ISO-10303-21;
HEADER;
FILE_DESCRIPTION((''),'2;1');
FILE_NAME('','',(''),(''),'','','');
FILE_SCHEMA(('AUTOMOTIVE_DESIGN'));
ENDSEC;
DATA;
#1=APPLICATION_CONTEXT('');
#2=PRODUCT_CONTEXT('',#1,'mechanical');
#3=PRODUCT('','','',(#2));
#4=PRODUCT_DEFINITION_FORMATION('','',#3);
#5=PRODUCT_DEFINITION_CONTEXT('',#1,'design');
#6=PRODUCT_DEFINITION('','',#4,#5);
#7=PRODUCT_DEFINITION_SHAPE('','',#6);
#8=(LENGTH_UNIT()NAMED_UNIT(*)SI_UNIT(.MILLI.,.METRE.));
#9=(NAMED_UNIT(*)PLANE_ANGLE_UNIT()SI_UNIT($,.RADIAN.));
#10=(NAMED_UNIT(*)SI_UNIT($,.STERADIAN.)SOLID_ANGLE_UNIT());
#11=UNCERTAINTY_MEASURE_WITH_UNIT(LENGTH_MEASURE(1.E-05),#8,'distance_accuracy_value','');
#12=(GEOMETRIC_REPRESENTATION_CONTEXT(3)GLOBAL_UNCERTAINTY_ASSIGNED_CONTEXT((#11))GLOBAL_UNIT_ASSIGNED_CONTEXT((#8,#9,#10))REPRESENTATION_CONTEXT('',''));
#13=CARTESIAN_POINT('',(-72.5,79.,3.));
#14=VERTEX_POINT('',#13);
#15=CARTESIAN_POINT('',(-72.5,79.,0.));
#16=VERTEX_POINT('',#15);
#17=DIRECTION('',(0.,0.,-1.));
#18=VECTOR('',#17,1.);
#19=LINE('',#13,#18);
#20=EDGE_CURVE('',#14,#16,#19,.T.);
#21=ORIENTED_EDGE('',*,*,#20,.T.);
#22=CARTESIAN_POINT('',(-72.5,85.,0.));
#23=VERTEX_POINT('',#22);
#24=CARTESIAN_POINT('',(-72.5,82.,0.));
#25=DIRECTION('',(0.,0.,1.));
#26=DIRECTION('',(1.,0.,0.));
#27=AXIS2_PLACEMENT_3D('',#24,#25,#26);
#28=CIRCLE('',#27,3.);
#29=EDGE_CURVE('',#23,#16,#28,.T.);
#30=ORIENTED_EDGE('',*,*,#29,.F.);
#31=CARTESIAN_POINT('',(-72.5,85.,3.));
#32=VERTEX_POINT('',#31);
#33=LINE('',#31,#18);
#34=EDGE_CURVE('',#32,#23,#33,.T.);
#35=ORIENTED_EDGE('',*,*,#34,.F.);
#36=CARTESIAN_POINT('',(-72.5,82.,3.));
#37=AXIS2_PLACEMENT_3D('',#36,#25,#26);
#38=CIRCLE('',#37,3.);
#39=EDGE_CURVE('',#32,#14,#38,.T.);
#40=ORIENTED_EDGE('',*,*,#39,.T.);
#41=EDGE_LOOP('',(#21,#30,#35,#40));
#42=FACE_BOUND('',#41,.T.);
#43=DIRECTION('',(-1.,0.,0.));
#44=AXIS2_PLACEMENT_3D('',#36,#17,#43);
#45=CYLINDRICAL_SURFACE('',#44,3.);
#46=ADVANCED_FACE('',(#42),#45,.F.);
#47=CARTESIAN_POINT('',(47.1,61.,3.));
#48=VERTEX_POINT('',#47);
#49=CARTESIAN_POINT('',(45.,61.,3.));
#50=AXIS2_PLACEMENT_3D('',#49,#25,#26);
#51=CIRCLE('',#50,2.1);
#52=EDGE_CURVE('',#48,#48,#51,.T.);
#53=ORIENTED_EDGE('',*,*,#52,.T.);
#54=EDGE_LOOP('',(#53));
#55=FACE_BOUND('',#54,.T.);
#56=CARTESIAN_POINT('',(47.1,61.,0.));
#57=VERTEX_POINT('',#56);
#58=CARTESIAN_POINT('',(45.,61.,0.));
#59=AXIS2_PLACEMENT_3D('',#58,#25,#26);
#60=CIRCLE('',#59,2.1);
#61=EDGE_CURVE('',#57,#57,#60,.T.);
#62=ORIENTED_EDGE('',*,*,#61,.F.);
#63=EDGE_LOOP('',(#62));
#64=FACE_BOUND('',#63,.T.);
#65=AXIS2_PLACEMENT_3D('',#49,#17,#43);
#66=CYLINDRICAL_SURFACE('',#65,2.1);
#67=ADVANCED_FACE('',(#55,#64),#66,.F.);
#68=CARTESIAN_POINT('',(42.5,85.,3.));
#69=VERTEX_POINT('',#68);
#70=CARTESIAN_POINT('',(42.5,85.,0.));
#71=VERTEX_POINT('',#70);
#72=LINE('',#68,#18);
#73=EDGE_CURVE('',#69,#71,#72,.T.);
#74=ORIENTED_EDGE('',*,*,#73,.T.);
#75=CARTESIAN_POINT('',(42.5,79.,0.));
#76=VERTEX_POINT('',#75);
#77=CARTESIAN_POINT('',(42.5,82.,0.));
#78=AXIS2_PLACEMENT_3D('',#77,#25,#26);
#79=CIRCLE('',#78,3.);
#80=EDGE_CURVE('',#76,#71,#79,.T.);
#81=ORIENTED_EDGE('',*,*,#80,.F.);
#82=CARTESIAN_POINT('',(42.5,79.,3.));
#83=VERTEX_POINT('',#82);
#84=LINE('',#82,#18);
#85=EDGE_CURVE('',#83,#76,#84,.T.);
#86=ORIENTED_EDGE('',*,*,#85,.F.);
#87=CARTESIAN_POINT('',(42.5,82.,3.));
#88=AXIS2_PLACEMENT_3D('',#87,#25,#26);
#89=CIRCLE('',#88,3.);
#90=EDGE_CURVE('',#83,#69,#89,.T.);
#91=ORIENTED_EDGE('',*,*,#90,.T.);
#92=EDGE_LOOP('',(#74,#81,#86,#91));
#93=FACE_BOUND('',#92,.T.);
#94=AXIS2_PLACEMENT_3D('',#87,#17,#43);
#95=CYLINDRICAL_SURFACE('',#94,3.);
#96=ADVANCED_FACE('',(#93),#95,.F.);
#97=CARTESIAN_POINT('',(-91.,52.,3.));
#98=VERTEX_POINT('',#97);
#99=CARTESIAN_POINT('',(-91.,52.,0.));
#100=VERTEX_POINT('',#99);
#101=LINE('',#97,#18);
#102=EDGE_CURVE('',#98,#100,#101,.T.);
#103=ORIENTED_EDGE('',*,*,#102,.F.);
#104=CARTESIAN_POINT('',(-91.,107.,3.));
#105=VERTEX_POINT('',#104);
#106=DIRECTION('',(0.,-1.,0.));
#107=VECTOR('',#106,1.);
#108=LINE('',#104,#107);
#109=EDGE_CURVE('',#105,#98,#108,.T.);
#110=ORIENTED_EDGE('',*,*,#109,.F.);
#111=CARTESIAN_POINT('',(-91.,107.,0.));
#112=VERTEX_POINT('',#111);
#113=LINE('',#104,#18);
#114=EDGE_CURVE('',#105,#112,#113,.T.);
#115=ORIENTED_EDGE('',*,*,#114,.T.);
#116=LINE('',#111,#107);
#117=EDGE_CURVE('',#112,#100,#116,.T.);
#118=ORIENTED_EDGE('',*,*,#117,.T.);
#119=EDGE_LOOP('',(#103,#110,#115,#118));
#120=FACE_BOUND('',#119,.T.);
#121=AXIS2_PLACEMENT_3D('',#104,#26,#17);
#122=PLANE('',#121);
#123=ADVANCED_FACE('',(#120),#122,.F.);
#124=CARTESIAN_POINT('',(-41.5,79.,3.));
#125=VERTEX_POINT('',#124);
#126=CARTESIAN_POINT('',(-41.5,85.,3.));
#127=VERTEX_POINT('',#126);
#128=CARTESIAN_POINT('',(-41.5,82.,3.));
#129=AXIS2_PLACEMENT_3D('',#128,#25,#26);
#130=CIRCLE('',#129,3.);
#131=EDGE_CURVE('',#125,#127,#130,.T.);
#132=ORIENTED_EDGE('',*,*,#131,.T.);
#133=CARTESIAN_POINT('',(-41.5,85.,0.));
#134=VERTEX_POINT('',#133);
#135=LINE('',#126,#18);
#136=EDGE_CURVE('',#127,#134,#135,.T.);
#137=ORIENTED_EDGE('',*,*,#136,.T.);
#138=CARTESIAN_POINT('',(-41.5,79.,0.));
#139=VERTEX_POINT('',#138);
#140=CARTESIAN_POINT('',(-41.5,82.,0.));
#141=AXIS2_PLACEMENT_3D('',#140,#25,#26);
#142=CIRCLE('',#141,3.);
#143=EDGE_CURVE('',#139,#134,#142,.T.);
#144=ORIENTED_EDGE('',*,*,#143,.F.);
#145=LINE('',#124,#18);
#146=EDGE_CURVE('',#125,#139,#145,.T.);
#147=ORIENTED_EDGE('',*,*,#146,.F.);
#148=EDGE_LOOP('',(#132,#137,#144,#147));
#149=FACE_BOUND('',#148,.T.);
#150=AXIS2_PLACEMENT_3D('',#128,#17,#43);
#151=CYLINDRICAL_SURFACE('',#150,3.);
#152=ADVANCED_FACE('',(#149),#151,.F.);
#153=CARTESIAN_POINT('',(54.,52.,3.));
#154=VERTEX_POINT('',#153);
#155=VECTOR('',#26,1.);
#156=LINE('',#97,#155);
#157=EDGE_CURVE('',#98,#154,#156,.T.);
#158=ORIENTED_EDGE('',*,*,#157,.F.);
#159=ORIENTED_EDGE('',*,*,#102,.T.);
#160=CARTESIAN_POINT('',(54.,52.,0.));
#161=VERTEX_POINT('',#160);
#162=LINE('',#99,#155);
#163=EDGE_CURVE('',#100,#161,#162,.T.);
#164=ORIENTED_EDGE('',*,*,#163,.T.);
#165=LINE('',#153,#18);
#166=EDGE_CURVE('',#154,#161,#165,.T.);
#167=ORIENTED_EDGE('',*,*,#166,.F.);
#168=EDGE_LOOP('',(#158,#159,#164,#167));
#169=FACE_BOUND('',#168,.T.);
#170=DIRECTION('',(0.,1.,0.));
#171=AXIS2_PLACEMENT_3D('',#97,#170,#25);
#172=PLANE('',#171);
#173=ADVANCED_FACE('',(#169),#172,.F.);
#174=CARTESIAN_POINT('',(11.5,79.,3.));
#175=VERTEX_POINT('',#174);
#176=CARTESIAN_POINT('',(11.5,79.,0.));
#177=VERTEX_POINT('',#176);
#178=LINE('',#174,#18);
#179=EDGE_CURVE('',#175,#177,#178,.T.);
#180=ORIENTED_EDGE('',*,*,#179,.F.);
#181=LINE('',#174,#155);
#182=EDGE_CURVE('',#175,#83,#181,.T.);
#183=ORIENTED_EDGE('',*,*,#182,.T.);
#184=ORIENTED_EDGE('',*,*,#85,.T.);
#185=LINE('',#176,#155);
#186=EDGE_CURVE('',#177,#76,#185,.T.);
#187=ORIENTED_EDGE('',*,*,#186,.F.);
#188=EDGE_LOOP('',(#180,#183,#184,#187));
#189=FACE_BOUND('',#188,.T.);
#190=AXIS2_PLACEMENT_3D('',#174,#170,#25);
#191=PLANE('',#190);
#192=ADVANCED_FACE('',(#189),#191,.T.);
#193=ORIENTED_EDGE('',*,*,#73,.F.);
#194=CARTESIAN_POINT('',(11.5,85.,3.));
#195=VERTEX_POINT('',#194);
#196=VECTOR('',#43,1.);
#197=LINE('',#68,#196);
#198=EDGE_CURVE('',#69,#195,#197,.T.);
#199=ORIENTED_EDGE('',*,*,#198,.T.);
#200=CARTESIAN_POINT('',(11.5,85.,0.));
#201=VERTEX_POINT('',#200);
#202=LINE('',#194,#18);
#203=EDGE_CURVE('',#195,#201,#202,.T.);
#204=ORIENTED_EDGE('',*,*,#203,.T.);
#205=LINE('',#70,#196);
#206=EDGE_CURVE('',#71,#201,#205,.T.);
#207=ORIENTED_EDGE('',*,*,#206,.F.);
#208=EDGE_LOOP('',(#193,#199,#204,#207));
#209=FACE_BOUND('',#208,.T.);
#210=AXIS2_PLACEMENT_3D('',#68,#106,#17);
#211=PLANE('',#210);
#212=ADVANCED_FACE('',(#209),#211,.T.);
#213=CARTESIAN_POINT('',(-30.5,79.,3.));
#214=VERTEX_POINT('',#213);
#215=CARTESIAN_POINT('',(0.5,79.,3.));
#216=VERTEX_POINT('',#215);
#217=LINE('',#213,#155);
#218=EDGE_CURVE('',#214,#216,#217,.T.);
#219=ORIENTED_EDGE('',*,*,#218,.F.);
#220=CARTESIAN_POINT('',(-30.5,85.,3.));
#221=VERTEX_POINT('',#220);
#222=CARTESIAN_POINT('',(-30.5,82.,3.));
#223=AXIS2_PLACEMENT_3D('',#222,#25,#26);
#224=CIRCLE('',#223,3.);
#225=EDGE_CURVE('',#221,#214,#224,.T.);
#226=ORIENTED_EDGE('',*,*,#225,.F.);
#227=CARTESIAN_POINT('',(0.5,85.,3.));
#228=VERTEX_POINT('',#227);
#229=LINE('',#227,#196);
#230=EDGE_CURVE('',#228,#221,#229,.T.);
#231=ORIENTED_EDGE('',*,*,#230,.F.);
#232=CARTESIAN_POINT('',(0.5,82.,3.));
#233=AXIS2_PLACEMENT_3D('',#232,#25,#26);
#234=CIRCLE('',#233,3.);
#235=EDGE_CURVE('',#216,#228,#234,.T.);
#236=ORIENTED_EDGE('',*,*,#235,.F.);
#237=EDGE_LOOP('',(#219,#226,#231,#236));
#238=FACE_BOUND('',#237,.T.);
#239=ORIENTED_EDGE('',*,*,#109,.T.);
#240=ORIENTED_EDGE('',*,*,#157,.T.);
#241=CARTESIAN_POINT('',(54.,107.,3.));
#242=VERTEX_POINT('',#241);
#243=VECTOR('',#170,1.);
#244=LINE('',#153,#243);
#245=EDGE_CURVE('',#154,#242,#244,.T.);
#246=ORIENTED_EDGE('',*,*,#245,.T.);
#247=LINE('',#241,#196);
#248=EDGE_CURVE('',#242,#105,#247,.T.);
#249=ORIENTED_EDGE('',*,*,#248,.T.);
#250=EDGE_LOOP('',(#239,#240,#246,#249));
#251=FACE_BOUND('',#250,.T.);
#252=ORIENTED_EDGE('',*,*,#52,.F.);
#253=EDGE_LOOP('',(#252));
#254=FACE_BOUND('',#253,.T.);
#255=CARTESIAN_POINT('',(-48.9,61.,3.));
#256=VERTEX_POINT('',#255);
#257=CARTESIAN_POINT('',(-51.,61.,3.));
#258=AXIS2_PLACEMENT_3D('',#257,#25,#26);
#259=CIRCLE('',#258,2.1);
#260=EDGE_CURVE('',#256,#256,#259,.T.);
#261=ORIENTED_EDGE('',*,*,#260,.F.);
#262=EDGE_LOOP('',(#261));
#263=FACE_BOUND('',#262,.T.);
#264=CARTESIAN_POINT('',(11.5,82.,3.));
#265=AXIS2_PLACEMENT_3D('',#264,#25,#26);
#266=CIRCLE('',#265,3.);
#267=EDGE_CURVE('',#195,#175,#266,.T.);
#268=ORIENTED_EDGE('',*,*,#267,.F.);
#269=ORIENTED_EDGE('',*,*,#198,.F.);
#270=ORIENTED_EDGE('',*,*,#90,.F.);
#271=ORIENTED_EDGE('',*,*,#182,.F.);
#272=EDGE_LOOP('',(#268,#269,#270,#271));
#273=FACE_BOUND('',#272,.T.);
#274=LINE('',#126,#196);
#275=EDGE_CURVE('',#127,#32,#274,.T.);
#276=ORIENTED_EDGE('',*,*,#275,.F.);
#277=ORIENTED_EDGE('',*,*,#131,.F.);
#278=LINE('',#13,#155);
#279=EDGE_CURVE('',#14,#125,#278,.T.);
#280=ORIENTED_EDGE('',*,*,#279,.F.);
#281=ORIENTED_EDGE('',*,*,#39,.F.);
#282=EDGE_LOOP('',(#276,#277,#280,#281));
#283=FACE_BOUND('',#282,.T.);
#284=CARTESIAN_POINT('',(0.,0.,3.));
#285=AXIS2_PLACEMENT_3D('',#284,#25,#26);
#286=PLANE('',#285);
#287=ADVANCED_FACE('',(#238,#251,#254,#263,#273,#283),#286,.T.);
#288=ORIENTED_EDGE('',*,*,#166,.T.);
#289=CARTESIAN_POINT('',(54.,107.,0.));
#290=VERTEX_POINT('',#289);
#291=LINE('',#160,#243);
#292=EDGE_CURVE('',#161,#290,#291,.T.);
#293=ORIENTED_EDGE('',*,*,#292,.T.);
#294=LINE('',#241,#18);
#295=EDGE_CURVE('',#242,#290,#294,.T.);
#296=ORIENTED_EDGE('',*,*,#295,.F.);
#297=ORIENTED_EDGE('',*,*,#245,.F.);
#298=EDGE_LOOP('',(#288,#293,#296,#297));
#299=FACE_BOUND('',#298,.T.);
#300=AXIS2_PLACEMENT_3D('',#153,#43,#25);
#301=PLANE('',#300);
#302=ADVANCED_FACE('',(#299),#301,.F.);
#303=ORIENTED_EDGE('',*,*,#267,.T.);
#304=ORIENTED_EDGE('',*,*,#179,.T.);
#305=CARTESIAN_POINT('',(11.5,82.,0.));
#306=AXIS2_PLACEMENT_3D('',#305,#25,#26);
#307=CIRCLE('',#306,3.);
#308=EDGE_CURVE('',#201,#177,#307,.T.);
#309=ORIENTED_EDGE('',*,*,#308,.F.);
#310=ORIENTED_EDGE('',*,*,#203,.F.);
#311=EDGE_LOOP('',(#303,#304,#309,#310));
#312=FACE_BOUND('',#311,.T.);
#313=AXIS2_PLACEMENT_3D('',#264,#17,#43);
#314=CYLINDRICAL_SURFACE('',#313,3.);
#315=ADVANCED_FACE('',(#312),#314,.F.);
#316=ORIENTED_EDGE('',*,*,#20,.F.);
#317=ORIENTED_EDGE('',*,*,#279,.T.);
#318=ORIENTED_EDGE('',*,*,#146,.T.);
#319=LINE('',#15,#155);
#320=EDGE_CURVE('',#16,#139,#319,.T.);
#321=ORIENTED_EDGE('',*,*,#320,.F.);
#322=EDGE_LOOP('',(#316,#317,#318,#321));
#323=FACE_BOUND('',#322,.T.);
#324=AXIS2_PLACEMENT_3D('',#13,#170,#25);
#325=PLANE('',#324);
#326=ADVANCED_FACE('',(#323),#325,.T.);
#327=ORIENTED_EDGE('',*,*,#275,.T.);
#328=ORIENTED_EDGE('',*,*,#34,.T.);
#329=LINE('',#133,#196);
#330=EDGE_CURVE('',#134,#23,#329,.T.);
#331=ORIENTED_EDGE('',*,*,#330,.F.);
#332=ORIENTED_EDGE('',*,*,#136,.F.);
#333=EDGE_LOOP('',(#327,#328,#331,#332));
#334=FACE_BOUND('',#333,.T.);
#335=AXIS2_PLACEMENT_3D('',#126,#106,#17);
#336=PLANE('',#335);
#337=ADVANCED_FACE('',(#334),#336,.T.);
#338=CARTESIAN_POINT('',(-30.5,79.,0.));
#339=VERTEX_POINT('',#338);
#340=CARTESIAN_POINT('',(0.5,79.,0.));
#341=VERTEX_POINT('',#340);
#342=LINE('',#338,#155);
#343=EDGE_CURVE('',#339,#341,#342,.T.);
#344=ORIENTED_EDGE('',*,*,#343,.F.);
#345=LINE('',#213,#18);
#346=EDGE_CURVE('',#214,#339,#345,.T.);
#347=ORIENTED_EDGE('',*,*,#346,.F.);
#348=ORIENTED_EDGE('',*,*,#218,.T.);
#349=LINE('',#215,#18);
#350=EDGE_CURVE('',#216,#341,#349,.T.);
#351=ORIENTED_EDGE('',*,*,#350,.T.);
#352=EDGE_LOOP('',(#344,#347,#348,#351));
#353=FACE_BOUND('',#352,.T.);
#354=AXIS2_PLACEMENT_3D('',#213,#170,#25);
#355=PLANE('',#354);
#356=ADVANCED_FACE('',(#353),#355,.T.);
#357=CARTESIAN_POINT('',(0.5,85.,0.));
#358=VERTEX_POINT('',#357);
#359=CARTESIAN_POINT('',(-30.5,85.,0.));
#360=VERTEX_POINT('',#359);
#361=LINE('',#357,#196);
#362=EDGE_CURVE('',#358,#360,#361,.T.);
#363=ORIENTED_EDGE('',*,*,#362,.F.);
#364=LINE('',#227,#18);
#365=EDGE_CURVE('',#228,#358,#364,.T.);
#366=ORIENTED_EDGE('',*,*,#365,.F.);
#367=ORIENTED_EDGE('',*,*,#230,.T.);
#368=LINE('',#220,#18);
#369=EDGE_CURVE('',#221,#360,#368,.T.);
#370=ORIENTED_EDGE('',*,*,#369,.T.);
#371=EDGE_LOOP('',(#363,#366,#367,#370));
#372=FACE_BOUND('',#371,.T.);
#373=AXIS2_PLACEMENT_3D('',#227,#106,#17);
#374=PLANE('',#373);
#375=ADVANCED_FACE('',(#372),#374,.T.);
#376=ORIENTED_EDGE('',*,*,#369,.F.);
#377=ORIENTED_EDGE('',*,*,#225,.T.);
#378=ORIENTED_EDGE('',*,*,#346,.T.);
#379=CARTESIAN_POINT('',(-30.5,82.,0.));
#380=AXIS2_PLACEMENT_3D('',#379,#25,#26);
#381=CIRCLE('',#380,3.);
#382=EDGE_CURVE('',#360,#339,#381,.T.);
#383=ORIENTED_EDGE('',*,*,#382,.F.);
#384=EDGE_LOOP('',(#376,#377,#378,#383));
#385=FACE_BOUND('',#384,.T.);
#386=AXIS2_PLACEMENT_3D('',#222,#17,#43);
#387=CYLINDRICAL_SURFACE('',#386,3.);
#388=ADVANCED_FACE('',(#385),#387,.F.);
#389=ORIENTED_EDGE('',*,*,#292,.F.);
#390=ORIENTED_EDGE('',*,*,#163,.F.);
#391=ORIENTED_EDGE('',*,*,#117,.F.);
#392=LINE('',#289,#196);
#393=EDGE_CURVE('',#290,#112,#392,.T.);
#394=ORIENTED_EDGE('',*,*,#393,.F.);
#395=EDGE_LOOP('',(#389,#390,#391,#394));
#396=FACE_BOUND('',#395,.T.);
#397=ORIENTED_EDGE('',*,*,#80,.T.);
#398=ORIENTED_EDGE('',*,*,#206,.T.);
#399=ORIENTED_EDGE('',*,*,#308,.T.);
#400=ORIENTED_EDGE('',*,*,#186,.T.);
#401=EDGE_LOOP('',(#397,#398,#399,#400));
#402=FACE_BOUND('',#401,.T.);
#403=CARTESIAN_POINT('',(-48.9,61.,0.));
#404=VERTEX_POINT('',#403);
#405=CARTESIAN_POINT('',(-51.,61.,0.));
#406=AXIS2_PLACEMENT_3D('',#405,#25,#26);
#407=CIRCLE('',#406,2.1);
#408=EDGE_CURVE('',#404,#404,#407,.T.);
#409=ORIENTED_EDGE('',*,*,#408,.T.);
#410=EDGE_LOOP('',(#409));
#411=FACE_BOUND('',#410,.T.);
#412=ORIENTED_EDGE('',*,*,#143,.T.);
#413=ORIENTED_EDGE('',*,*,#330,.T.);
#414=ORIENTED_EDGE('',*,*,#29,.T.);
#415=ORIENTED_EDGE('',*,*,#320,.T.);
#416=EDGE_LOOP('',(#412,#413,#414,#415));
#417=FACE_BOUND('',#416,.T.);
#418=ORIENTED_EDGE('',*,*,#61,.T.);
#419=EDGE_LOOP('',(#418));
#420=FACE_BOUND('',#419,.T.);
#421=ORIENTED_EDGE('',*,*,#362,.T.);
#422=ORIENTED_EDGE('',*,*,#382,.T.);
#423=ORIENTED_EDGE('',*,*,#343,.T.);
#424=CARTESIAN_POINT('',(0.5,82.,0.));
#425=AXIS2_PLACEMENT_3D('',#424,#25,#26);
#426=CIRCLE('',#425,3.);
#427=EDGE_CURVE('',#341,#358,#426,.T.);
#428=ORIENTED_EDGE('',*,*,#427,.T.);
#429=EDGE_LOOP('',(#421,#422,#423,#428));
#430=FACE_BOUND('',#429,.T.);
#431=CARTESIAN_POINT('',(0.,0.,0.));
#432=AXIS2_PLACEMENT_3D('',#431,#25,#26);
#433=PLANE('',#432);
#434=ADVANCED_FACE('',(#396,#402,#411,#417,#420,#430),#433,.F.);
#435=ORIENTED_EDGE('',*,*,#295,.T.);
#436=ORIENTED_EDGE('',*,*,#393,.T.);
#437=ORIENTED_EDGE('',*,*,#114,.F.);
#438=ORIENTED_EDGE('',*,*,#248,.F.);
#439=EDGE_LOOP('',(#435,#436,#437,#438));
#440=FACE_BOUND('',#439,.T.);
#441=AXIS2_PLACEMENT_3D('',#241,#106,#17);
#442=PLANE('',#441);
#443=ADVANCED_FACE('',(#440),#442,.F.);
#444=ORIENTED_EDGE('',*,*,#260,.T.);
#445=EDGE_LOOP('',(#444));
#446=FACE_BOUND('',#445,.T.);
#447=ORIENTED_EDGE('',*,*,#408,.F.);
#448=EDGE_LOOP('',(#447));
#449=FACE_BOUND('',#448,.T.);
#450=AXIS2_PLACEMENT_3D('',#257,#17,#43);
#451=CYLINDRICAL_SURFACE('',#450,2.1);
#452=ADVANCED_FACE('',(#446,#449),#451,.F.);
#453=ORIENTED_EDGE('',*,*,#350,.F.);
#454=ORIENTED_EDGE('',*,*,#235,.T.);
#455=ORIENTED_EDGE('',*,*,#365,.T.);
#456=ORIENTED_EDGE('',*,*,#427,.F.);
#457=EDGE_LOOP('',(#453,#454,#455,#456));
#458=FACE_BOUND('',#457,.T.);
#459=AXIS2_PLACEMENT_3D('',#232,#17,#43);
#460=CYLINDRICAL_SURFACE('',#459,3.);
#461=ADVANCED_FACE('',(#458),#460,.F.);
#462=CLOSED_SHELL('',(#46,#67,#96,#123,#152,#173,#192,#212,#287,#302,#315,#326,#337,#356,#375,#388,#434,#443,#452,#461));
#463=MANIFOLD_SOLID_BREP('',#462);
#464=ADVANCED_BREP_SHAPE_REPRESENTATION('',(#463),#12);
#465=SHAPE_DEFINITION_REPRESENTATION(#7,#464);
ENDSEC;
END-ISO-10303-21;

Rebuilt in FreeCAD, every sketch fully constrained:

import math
import FreeCAD as App
import Part
import Sketcher

V = App.Vector


def add_polygon(sketch, points):
    """Adds a closed chain of lines whose ends are joined by coincident constraints."""
    first, n = sketch.GeometryCount, len(points)
    for a, b in zip(points, points[1:] + points[:1]):
        sketch.addGeometry(Part.LineSegment(App.Vector(*a, 0), App.Vector(*b, 0)), False)
    for i in range(n):
        sketch.addConstraint(Sketcher.Constraint("Coincident", first + i, 2, first + (i + 1) % n, 1))

doc = App.newDocument("Part")
body = doc.addObject("PartDesign::Body", "Body")

# Sketch on XY plane
sketch1 = body.newObject("Sketcher::SketchObject", "Sketch")
sketch1.AttachmentSupport = (doc.getObject("XY_Plane"), [""])
sketch1.MapMode = "FlatFace"
add_polygon(sketch1, [(-91, 107), (-91, 52), (54, 52), (54, 107)])  # lines 0-3
sketch1.addGeometry(Part.Circle(V(-51, 61, 0), V(0, 0, 1), 2.1), False)  # 4
sketch1.addGeometry(Part.Circle(V(45, 61, 0), V(0, 0, 1), 2.1), False)  # 5
sketch1.addGeometry(Part.LineSegment(V(-41.5, 79, 0), V(-72.5, 79, 0)), False)  # 6
sketch1.addGeometry(Part.ArcOfCircle(Part.Circle(V(-72.5, 82, 0), V(0, 0, 1), 3), math.radians(90), math.radians(270)), False)  # 7
sketch1.addGeometry(Part.LineSegment(V(-72.5, 85, 0), V(-41.5, 85, 0)), False)  # 8
sketch1.addGeometry(Part.ArcOfCircle(Part.Circle(V(-41.5, 82, 0), V(0, 0, 1), 3), math.radians(-90), math.radians(90)), False)  # 9
sketch1.addGeometry(Part.LineSegment(V(0.5, 79, 0), V(-30.5, 79, 0)), False)  # 10
sketch1.addGeometry(Part.ArcOfCircle(Part.Circle(V(-30.5, 82, 0), V(0, 0, 1), 3), math.radians(90), math.radians(270)), False)  # 11
sketch1.addGeometry(Part.LineSegment(V(-30.5, 85, 0), V(0.5, 85, 0)), False)  # 12
sketch1.addGeometry(Part.ArcOfCircle(Part.Circle(V(0.5, 82, 0), V(0, 0, 1), 3), math.radians(-90), math.radians(90)), False)  # 13
sketch1.addGeometry(Part.LineSegment(V(42.5, 79, 0), V(11.5, 79, 0)), False)  # 14
sketch1.addGeometry(Part.ArcOfCircle(Part.Circle(V(11.5, 82, 0), V(0, 0, 1), 3), math.radians(90), math.radians(270)), False)  # 15
sketch1.addGeometry(Part.LineSegment(V(11.5, 85, 0), V(42.5, 85, 0)), False)  # 16
sketch1.addGeometry(Part.ArcOfCircle(Part.Circle(V(42.5, 82, 0), V(0, 0, 1), 3), math.radians(-90), math.radians(90)), False)  # 17
sketch1.addConstraint([
    Sketcher.Constraint("Tangent", 6, 2, 7, 2),
    Sketcher.Constraint("Tangent", 7, 1, 8, 1),
    Sketcher.Constraint("Tangent", 8, 2, 9, 2),
    Sketcher.Constraint("Tangent", 9, 1, 6, 1),
    Sketcher.Constraint("Tangent", 10, 2, 11, 2),
    Sketcher.Constraint("Tangent", 11, 1, 12, 1),
    Sketcher.Constraint("Tangent", 12, 2, 13, 2),
    Sketcher.Constraint("Tangent", 13, 1, 10, 1),
    Sketcher.Constraint("Tangent", 14, 2, 15, 2),
    Sketcher.Constraint("Tangent", 15, 1, 16, 1),
    Sketcher.Constraint("Tangent", 16, 2, 17, 2),
    Sketcher.Constraint("Tangent", 17, 1, 14, 1),
    Sketcher.Constraint("Vertical", 0),
    Sketcher.Constraint("Horizontal", 1),
    Sketcher.Constraint("Vertical", 2),
    Sketcher.Constraint("Horizontal", 3),
    Sketcher.Constraint("Horizontal", 6),
    Sketcher.Constraint("Horizontal", 8),
    Sketcher.Constraint("Horizontal", 10),
    Sketcher.Constraint("Horizontal", 12),
    Sketcher.Constraint("Horizontal", 14),
    Sketcher.Constraint("Horizontal", 16),
    Sketcher.Constraint("Equal", 4, 5),
    Sketcher.Constraint("Equal", 9, 11),
    Sketcher.Constraint("Equal", 13, 15),
    Sketcher.Constraint("Horizontal", 4, 3, 5, 3),
    Sketcher.Constraint("Horizontal", 9, 3, 11, 3),
    Sketcher.Constraint("Horizontal", 13, 3, 15, 3),
    Sketcher.Constraint("Equal", 8, 10),
    Sketcher.Constraint("Equal", 12, 14),
    Sketcher.Constraint("Radius", 7, 3.0),
    Sketcher.Constraint("Diameter", 4, 4.2),
    Sketcher.Constraint("DistanceX", 1, 1, 1, 2, 145.0),
    Sketcher.Constraint("DistanceX", 6, 2, 6, 1, 31.0),
    Sketcher.Constraint("DistanceY", 0, 2, 0, 1, 55.0),
    Sketcher.Constraint("DistanceX", 4, 3, -1, 1, 51.0),
    Sketcher.Constraint("DistanceY", -1, 1, 4, 3, 61.0),
    Sketcher.Constraint("DistanceX", -1, 1, 5, 3, 45.0),
    Sketcher.Constraint("DistanceY", -1, 1, 7, 3, 82.0),
    Sketcher.Constraint("DistanceX", 0, 2, -1, 1, 91.0),
    Sketcher.Constraint("DistanceY", -1, 1, 0, 2, 52.0),
    Sketcher.Constraint("DistanceX", 9, 3, 11, 3, 11.0),
    Sketcher.Constraint("DistanceX", 13, 3, 15, 3, 11.0),
    Sketcher.Constraint("DistanceX", 7, 3, -1, 1, 72.5),
])
pad1 = body.newObject("PartDesign::Pad", "Pad")
pad1.Profile = sketch1
pad1.Length = 3

doc.recompute()
